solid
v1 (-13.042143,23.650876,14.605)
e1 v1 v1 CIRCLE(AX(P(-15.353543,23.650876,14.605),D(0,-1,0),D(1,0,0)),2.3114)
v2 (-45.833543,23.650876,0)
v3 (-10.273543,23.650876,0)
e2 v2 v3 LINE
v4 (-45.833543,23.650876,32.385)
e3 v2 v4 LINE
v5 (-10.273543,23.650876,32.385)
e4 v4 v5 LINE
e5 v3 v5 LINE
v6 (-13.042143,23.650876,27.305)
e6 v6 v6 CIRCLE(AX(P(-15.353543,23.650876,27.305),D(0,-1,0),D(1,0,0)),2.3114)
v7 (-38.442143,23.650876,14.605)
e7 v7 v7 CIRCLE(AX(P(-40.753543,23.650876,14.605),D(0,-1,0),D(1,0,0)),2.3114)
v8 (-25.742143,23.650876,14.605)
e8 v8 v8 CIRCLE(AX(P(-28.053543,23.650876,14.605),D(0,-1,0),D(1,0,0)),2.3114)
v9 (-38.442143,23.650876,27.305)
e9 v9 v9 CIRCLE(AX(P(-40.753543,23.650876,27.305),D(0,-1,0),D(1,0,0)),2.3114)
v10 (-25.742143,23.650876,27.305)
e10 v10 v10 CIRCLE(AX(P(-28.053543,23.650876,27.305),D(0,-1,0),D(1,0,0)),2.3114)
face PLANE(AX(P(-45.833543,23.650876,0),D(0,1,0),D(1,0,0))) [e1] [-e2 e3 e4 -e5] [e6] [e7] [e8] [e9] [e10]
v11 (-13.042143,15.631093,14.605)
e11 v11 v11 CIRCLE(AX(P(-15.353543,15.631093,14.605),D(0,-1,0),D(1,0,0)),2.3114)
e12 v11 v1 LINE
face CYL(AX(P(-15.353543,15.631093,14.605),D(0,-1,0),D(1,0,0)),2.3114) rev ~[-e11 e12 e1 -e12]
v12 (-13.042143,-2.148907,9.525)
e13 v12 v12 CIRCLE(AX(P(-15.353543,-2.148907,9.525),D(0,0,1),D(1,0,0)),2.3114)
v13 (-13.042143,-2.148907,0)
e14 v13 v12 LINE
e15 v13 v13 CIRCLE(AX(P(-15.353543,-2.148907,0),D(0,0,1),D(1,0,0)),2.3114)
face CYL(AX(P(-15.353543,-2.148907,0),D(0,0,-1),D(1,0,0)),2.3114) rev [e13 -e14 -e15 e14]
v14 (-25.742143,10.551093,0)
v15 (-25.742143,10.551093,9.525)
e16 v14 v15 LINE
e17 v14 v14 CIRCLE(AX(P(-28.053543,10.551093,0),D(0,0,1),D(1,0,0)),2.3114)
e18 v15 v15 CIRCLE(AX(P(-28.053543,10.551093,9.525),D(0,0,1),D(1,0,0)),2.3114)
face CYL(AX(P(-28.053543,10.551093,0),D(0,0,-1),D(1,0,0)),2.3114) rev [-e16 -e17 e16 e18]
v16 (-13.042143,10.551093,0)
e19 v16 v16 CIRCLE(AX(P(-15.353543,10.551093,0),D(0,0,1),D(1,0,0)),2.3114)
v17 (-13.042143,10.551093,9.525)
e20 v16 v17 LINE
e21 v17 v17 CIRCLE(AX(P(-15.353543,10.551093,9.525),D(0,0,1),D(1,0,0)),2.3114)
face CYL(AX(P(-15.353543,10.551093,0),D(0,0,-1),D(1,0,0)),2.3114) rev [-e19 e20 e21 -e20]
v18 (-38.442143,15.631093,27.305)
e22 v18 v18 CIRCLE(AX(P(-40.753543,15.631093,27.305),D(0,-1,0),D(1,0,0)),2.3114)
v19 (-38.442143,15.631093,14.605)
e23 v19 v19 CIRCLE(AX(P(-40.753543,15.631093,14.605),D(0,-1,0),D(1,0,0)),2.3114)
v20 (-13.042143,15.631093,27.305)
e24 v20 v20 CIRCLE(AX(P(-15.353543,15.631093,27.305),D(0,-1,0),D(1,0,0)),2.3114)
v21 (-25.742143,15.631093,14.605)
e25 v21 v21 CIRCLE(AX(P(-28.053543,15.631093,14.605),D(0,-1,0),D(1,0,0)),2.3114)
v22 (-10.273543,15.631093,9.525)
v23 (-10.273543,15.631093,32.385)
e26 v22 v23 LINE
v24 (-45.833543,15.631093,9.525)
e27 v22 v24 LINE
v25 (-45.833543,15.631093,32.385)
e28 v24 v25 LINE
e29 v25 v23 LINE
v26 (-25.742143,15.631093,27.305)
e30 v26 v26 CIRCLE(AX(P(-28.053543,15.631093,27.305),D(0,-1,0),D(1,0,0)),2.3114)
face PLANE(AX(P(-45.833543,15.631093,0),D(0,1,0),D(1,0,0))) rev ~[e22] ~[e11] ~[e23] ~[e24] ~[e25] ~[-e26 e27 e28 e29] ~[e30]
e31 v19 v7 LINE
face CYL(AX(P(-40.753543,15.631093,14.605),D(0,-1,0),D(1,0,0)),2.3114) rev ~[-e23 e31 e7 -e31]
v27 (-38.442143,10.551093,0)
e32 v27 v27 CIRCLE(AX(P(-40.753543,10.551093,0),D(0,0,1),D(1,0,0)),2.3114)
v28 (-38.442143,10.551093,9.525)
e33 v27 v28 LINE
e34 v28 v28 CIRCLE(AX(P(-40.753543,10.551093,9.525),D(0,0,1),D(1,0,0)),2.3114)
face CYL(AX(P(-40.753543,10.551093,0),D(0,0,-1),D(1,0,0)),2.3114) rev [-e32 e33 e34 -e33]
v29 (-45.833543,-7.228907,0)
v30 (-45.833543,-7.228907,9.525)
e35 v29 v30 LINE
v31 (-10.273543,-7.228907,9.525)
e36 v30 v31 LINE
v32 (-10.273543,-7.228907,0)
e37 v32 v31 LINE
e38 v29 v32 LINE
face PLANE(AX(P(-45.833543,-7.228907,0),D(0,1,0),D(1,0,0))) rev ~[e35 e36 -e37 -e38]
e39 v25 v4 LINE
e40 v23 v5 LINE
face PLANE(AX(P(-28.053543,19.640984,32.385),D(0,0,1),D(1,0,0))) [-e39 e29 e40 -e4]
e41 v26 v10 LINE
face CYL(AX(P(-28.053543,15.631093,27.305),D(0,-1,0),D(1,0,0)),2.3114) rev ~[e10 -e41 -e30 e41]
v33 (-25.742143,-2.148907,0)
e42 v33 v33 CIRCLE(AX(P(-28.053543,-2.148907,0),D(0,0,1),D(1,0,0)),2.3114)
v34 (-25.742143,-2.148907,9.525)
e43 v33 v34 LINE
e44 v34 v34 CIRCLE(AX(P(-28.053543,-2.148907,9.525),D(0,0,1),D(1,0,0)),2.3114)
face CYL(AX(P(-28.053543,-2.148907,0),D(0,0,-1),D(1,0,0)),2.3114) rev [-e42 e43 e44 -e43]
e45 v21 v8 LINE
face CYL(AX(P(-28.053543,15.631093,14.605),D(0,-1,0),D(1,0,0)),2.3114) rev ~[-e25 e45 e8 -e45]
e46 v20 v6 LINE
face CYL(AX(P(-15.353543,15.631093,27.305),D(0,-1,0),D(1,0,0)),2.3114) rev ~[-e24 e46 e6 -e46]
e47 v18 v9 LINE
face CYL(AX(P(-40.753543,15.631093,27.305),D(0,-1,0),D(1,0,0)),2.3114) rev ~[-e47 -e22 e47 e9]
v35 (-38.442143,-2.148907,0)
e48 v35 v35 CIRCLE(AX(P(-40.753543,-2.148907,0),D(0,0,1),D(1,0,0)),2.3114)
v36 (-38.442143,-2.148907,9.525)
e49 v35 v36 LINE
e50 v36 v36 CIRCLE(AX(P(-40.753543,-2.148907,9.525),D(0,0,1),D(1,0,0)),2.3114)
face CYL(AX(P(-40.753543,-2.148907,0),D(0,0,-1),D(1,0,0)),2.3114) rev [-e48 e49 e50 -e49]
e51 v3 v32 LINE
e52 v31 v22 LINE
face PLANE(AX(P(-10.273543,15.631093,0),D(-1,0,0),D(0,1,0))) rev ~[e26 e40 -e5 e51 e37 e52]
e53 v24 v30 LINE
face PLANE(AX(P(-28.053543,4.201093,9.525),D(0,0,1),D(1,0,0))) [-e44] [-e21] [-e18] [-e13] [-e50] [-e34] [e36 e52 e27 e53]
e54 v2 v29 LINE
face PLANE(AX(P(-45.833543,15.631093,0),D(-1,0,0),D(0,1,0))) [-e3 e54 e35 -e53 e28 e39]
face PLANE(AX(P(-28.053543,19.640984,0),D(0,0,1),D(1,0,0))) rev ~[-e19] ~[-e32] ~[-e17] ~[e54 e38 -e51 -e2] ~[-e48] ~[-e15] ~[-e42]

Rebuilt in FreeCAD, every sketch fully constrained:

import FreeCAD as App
import Part
import Sketcher
Q = App.Units.Quantity

doc = App.newDocument("Part")
body = doc.addObject("PartDesign::Body", "Body")

sketch1 = body.newObject("Sketcher::SketchObject", "Sketch")
sketch1.AttachmentSupport = (doc.getObject("XY_Plane"), [""])
sketch1.MapMode = "FlatFace"
sketch1.addGeometry([
    Part.LineSegment(App.Vector(-10.3, 15.6, 0), App.Vector(-45.8, 15.6, 0)),
    Part.LineSegment(App.Vector(-45.8, 15.6, 0), App.Vector(-45.8, -7.2, 0)),
    Part.LineSegment(App.Vector(-45.8, -7.2, 0), App.Vector(-10.3, -7.2, 0)),
    Part.LineSegment(App.Vector(-10.3, -7.2, 0), App.Vector(-10.3, 15.6, 0)),
    Part.Circle(App.Vector(-40.8, -2.1, 0), App.Vector(0, 0, 1), 2.3),
    Part.Circle(App.Vector(-28.1, -2.1, 0), App.Vector(0, 0, 1), 2.3),
    Part.Circle(App.Vector(-15.4, -2.1, 0), App.Vector(0, 0, 1), 2.3),
    Part.Circle(App.Vector(-40.8, 10.6, 0), App.Vector(0, 0, 1), 2.3),
    Part.Circle(App.Vector(-28.1, 10.6, 0), App.Vector(0, 0, 1), 2.3),
    Part.Circle(App.Vector(-15.4, 10.6, 0), App.Vector(0, 0, 1), 2.3),
], False)
sketch1.addConstraint([
    Sketcher.Constraint("Coincident", 0, 2, 1, 1),
    Sketcher.Constraint("Coincident", 1, 2, 2, 1),
    Sketcher.Constraint("Coincident", 2, 2, 3, 1),
    Sketcher.Constraint("Coincident", 3, 2, 0, 1),
    Sketcher.Constraint("Horizontal", 0),
    Sketcher.Constraint("Vertical", 1),
    Sketcher.Constraint("Horizontal", 2),
    Sketcher.Constraint("Vertical", 3),
    Sketcher.Constraint("Equal", 4, 5),
    Sketcher.Constraint("Equal", 5, 6),
    Sketcher.Constraint("Equal", 6, 7),
    Sketcher.Constraint("Equal", 7, 8),
    Sketcher.Constraint("Equal", 8, 9),
    Sketcher.Constraint("Horizontal", 4, 3, 5, 3),
    Sketcher.Constraint("Horizontal", 5, 3, 6, 3),
    Sketcher.Constraint("Horizontal", 7, 3, 8, 3),
    Sketcher.Constraint("Horizontal", 8, 3, 9, 3),
    Sketcher.Constraint("Vertical", 4, 3, 7, 3),
    Sketcher.Constraint("Vertical", 5, 3, 8, 3),
    Sketcher.Constraint("Vertical", 6, 3, 9, 3),
    Sketcher.Constraint("Diameter", 4, Q("0.182 in")),
    Sketcher.Constraint("DistanceX", 0, 2, 0, 1, Q("1.4 in")),
    Sketcher.Constraint("DistanceY", 1, 2, 1, 1, Q("0.9 in")),
    Sketcher.Constraint("DistanceX", 4, 3, 6, 3, Q("1 in")),
    Sketcher.Constraint("DistanceX", 4, 3, 5, 3, Q("0.5 in")),
    Sketcher.Constraint("DistanceY", 4, 3, 7, 3, Q("0.5 in")),
    Sketcher.Constraint("DistanceX", 0, 2, 7, 3, Q("0.2 in")),
    Sketcher.Constraint("DistanceY", 7, 3, 0, 2, Q("0.2 in")),
    Sketcher.Constraint("DistanceX", 4, 3, -1, 1, Q("40.753543 mm")),
    Sketcher.Constraint("DistanceY", 4, 3, -1, 1, Q("2.148907 mm")),
])
pad1 = body.newObject("PartDesign::Pad", "Pad")
pad1.Profile = sketch1
pad1.Length = Q("0.375 in")

sketch2 = body.newObject("Sketcher::SketchObject", "Sketch001")
sketch2.AttachmentSupport = (doc.getObject("XY_Plane"), [""])
sketch2.MapMode = "FlatFace"
sketch2.addGeometry([
    Part.LineSegment(App.Vector(-46, 24, 0), App.Vector(-46, 16, 0)),
    Part.LineSegment(App.Vector(-46, 16, 0), App.Vector(-10, 16, 0)),
    Part.LineSegment(App.Vector(-10, 16, 0), App.Vector(-10, 24, 0)),
    Part.LineSegment(App.Vector(-10, 24, 0), App.Vector(-46, 24, 0)),
], False)
sketch2.addConstraint([
    Sketcher.Constraint("Coincident", 0, 2, 1, 1),
    Sketcher.Constraint("Coincident", 1, 2, 2, 1),
    Sketcher.Constraint("Coincident", 2, 2, 3, 1),
    Sketcher.Constraint("Coincident", 3, 2, 0, 1),
    Sketcher.Constraint("Vertical", 0),
    Sketcher.Constraint("Horizontal", 1),
    Sketcher.Constraint("Vertical", 2),
    Sketcher.Constraint("Horizontal", 3),
    Sketcher.Constraint("DistanceX", 1, 1, 1, 2, Q("1.4 in")),
    Sketcher.Constraint("DistanceY", 0, 2, 0, 1, Q("8.019783 mm")),
    Sketcher.Constraint("DistanceX", 0, 2, -1, 1, Q("45.833543 mm")),
    Sketcher.Constraint("DistanceY", -1, 1, 0, 2, Q("15.631093 mm")),
])
pad2 = body.newObject("PartDesign::Pad", "Pad001")
pad2.Profile = sketch2
pad2.Length = Q("1.275 in")

sketch3 = body.newObject("Sketcher::SketchObject", "Sketch002")
sketch3.AttachmentSupport = (doc.getObject("XZ_Plane"), [""])
sketch3.MapMode = "FlatFace"
sketch3.AttachmentOffset = App.Placement(App.Vector(0, 0, -15.631093), App.Rotation())
sketch3.addGeometry([
    Part.Circle(App.Vector(-40.8, 27.3, 0), App.Vector(0, 0, 1), 2.3),
    Part.Circle(App.Vector(-28.1, 27.3, 0), App.Vector(0, 0, 1), 2.3),
    Part.Circle(App.Vector(-15.4, 27.3, 0), App.Vector(0, 0, 1), 2.3),
    Part.Circle(App.Vector(-15.4, 14.6, 0), App.Vector(0, 0, 1), 2.3),
    Part.Circle(App.Vector(-28.1, 14.6, 0), App.Vector(0, 0, 1), 2.3),
    Part.Circle(App.Vector(-40.8, 14.6, 0), App.Vector(0, 0, 1), 2.3),
], False)
sketch3.addConstraint([
    Sketcher.Constraint("Equal", 0, 1),
    Sketcher.Constraint("Equal", 1, 2),
    Sketcher.Constraint("Equal", 2, 3),
    Sketcher.Constraint("Equal", 3, 4),
    Sketcher.Constraint("Equal", 4, 5),
    Sketcher.Constraint("Horizontal", 0, 3, 1, 3),
    Sketcher.Constraint("Horizontal", 1, 3, 2, 3),
    Sketcher.Constraint("Horizontal", 3, 3, 4, 3),
    Sketcher.Constraint("Horizontal", 4, 3, 5, 3),
    Sketcher.Constraint("Vertical", 2, 3, 3, 3),
    Sketcher.Constraint("Vertical", 1, 3, 4, 3),
    Sketcher.Constraint("Vertical", 0, 3, 5, 3),
    Sketcher.Constraint("Diameter", 0, Q("0.182 in")),
    Sketcher.Constraint("DistanceX", 0, 3, 2, 3, Q("1 in")),
    Sketcher.Constraint("DistanceX", 0, 3, 1, 3, Q("0.5 in")),
    Sketcher.Constraint("DistanceY", 3, 3, 2, 3, Q("0.5 in")),
    Sketcher.Constraint("DistanceY", -1, 1, 0, 3, Q("1.075 in")),
    Sketcher.Constraint("DistanceX", 0, 3, -1, 1, Q("40.753543 mm")),
])
pocket1 = body.newObject("PartDesign::Pocket", "Pocket")
pocket1.Profile = sketch3
pocket1.Length = Q("1 in")

doc.recompute()
